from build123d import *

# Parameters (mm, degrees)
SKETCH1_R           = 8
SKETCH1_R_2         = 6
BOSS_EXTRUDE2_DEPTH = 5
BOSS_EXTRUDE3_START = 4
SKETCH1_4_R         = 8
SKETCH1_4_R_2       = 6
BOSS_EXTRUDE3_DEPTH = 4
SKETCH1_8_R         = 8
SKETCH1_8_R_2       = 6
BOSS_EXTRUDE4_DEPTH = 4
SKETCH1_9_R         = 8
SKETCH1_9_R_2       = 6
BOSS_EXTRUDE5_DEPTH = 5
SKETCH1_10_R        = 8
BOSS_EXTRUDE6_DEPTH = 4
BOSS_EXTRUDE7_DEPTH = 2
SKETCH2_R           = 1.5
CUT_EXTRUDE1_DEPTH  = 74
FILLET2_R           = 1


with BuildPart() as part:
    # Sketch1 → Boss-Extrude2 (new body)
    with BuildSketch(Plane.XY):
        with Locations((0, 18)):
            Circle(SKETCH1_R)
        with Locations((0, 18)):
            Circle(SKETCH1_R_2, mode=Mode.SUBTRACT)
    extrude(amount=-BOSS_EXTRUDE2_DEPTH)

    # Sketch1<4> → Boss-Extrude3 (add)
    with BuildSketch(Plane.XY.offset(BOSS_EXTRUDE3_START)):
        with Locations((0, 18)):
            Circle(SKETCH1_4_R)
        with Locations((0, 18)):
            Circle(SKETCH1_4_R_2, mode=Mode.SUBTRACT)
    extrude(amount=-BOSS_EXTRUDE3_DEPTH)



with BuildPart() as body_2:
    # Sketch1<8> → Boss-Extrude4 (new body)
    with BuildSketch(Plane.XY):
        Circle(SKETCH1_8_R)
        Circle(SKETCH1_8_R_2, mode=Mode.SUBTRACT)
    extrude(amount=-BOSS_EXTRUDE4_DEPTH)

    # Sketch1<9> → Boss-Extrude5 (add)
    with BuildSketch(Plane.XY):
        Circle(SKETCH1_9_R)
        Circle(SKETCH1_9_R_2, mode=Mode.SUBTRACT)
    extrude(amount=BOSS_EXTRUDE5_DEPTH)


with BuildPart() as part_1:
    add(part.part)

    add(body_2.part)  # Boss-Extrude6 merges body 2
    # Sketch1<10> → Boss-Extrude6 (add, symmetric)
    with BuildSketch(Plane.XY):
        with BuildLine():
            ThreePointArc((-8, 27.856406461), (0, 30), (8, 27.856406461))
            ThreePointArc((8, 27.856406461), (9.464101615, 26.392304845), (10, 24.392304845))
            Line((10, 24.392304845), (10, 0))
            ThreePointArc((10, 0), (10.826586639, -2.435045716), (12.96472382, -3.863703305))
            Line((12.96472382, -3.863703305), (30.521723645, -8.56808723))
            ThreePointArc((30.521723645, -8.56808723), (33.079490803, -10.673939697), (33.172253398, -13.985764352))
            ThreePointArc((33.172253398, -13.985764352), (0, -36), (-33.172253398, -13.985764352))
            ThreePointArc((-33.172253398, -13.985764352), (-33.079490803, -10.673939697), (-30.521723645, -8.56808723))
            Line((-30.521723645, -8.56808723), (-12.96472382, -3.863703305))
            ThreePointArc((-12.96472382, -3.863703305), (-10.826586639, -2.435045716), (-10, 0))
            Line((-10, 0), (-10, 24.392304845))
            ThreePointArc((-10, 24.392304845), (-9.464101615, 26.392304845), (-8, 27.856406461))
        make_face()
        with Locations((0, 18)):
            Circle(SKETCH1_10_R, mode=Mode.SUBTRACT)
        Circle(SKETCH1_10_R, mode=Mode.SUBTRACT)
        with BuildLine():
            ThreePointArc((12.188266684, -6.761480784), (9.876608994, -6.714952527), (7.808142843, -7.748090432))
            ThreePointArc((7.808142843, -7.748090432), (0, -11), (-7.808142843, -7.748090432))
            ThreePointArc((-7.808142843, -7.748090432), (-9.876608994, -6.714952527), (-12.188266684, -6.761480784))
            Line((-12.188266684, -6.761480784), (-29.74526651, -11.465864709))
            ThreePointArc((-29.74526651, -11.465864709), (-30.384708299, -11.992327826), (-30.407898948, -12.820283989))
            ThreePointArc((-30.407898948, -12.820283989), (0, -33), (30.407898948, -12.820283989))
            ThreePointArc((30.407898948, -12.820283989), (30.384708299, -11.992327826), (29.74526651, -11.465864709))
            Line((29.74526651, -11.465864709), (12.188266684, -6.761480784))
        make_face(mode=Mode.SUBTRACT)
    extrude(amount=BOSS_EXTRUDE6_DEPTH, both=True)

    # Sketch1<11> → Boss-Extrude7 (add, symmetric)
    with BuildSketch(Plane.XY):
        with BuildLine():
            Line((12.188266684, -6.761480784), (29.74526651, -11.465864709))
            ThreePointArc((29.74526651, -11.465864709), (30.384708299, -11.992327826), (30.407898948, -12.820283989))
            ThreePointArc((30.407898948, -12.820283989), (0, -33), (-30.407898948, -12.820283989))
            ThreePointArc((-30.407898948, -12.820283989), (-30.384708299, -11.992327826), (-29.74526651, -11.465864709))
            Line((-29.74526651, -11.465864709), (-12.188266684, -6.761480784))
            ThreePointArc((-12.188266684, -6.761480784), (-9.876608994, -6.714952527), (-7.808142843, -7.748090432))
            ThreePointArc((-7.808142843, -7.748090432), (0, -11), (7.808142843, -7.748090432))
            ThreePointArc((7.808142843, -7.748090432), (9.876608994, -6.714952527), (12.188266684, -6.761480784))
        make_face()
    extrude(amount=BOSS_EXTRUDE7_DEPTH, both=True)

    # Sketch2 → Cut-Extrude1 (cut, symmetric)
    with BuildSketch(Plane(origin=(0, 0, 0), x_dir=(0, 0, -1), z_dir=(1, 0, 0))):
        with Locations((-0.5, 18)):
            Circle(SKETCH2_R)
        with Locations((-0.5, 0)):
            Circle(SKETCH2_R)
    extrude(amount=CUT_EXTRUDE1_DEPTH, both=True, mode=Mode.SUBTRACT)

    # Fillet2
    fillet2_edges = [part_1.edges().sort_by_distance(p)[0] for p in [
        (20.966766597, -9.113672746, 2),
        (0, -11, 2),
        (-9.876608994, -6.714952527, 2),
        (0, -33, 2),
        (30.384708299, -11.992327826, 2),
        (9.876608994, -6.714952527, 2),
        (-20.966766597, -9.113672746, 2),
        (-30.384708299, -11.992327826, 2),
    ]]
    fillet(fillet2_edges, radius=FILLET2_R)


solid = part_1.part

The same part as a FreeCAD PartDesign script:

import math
import FreeCAD as App
import Part
import Sketcher

V = App.Vector
Q = App.Units.Quantity


def edges_at(feature, points):
    """Names of the edges that pass closest to the given points."""
    edges = feature.Shape.Edges
    near = lambda p: min(range(len(edges)), key=lambda i: edges[i].distToShape(Part.Vertex(*p))[0])
    return sorted({f"Edge{near(p) + 1}" for p in points})

doc = App.newDocument("Part")
body = doc.addObject("PartDesign::Body", "Body")

sketch1 = doc.addObject("Sketcher::SketchObject", "Sketch")
body.addObject(sketch1)
sketch1.AttachmentSupport = (doc.XY_Plane, [""])
sketch1.MapMode = "FlatFace"
sketch1.addGeometry([
    Part.Circle(V(0, 18, 0), V(0, 0, 1), 8),
    Part.Circle(V(0, 18, 0), V(0, 0, 1), 6),
], False)
sketch1.addConstraint([
    Sketcher.Constraint("Coincident", 1, 3, 0, 3),
    Sketcher.Constraint("PointOnObject", 0, 3, -2),
    Sketcher.Constraint("Diameter", 0, Q("16 mm")),
    Sketcher.Constraint("Diameter", 1, Q("12 mm")),
    Sketcher.Constraint("DistanceY", -1, 1, 0, 3, Q("18 mm")),
])
pad1 = doc.addObject("PartDesign::Pad", "Pad")
body.addObject(pad1)
pad1.Profile = sketch1
pad1.Length = 5
pad1.Reversed = True

sketch2 = doc.addObject("Sketcher::SketchObject", "Sketch001")
body.addObject(sketch2)
sketch2.AttachmentSupport = (doc.XY_Plane, [""])
sketch2.MapMode = "FlatFace"
sketch2.AttachmentOffset = App.Placement(V(0, 0, 4), App.Rotation())
sketch2.addGeometry([
    Part.Circle(V(0, 18, 0), V(0, 0, 1), 8),
    Part.Circle(V(0, 18, 0), V(0, 0, 1), 6),
], False)
sketch2.addConstraint([
    Sketcher.Constraint("Coincident", 1, 3, 0, 3),
    Sketcher.Constraint("PointOnObject", 0, 3, -2),
    Sketcher.Constraint("Diameter", 0, Q("16 mm")),
    Sketcher.Constraint("Diameter", 1, Q("12 mm")),
    Sketcher.Constraint("DistanceY", -1, 1, 0, 3, Q("18 mm")),
])
pad2 = doc.addObject("PartDesign::Pad", "Pad001")
body.addObject(pad2)
pad2.Profile = sketch2
pad2.Length = 4
pad2.Reversed = True
body2 = doc.addObject("PartDesign::Body", "Body001")

sketch3 = doc.addObject("Sketcher::SketchObject", "Sketch002")
body2.addObject(sketch3)
sketch3.AttachmentSupport = (doc.getObject("XY_Plane001"), [""])
sketch3.MapMode = "FlatFace"
sketch3.addGeometry([
    Part.Circle(V(0, 0, 0), V(0, 0, 1), 8),
    Part.Circle(V(0, 0, 0), V(0, 0, 1), 6),
], False)
sketch3.addConstraint([
    Sketcher.Constraint("Coincident", 0, 3, -1, 1),
    Sketcher.Constraint("Coincident", 1, 3, -1, 1),
    Sketcher.Constraint("Diameter", 0, Q("16 mm")),
    Sketcher.Constraint("Diameter", 1, Q("12 mm")),
])
pad3 = doc.addObject("PartDesign::Pad", "Pad002")
body2.addObject(pad3)
pad3.Profile = sketch3
pad3.Length = 4
pad3.Reversed = True

sketch4 = doc.addObject("Sketcher::SketchObject", "Sketch003")
body2.addObject(sketch4)
sketch4.AttachmentSupport = (doc.getObject("XY_Plane001"), [""])
sketch4.MapMode = "FlatFace"
sketch4.addGeometry([
    Part.Circle(V(0, 0, 0), V(0, 0, 1), 8),
    Part.Circle(V(0, 0, 0), V(0, 0, 1), 6),
], False)
sketch4.addConstraint([
    Sketcher.Constraint("Coincident", 0, 3, -1, 1),
    Sketcher.Constraint("Coincident", 1, 3, -1, 1),
    Sketcher.Constraint("Diameter", 0, Q("16 mm")),
    Sketcher.Constraint("Diameter", 1, Q("12 mm")),
])
pad4 = doc.addObject("PartDesign::Pad", "Pad003")
body2.addObject(pad4)
pad4.Profile = sketch4
pad4.Length = 5
body.AllowCompound = True
doc.recompute()

boolean = doc.addObject("PartDesign::Boolean", "Boolean")
body.addObject(boolean)
boolean.Type = "Fuse"
boolean.addObjects([body2])

sketch5 = doc.addObject("Sketcher::SketchObject", "Sketch004")
body.addObject(sketch5)
sketch5.AttachmentSupport = (doc.XY_Plane, [""])
sketch5.MapMode = "FlatFace"
sketch5.addGeometry([
    Part.ArcOfCircle(Part.Circle(V(0, 14, 0), V(0, 0, 1), 16), math.radians(60), math.radians(120)),
    Part.ArcOfCircle(Part.Circle(V(-6, 24.4, 0), V(0, 0, 1), 4), math.radians(120), math.radians(180)),
    Part.LineSegment(V(-10, 24.4, 0), V(-10, 0, 0)),
    Part.ArcOfCircle(Part.Circle(V(-14, 0, 0), V(0, 0, 1), 4), math.radians(-75), math.radians(0)),
    Part.LineSegment(V(-13, -3.9, 0), V(-30.5, -8.6, 0)),
    Part.ArcOfCircle(Part.Circle(V(-29.5, -12.4, 0), V(0, 0, 1), 4), math.radians(105), math.radians(203)),
    Part.ArcOfCircle(Part.Circle(V(0, 0, 0), V(0, 0, 1), 36), math.radians(-157), math.radians(-23)),
    Part.ArcOfCircle(Part.Circle(V(29.5, -12.4, 0), V(0, 0, 1), 4), math.radians(-23), math.radians(75)),
    Part.LineSegment(V(30.5, -8.6, 0), V(13, -3.9, 0)),
    Part.ArcOfCircle(Part.Circle(V(14, 0, 0), V(0, 0, 1), 4), math.radians(180), math.radians(255)),
    Part.LineSegment(V(10, 0, 0), V(10, 24.4, 0)),
    Part.ArcOfCircle(Part.Circle(V(6, 24.4, 0), V(0, 0, 1), 4), math.radians(0), math.radians(60)),
    Part.LineSegment(V(12.2, -6.8, 0), V(29.7, -11.5, 0)),
    Part.ArcOfCircle(Part.Circle(V(29.5, -12.4, 0), V(0, 0, 1), 1), math.radians(-23), math.radians(75)),
    Part.ArcOfCircle(Part.Circle(V(0, 0, 0), V(0, 0, 1), 33), math.radians(-157), math.radians(-23)),
    Part.ArcOfCircle(Part.Circle(V(-29.5, -12.4, 0), V(0, 0, 1), 1), math.radians(105), math.radians(203)),
    Part.LineSegment(V(-29.7, -11.5, 0), V(-12.2, -6.8, 0)),
    Part.ArcOfCircle(Part.Circle(V(-10.9, -11.4, 0), V(0, 0, 1), 4.8), math.radians(50), math.radians(105)),
    Part.ArcOfCircle(Part.Circle(V(0, 0, 0), V(0, 0, 1), 11), math.radians(-135), math.radians(-45)),
    Part.ArcOfCircle(Part.Circle(V(10.9, -11.4, 0), V(0, 0, 1), 4.8), math.radians(75), math.radians(130)),
    Part.Circle(V(0, 0, 0), V(0, 0, 1), 8),
    Part.Circle(V(0, 18, 0), V(0, 0, 1), 8),
], False)
sketch5.addConstraint([
    Sketcher.Constraint("Tangent", 0, 2, 1, 1),
    Sketcher.Constraint("Tangent", 1, 2, 2, 1),
    Sketcher.Constraint("Tangent", 2, 2, 3, 2),
    Sketcher.Constraint("Tangent", 3, 1, 4, 1),
    Sketcher.Constraint("Tangent", 4, 2, 5, 1),
    Sketcher.Constraint("Tangent", 5, 2, 6, 1),
    Sketcher.Constraint("Tangent", 6, 2, 7, 1),
    Sketcher.Constraint("Tangent", 7, 2, 8, 1),
    Sketcher.Constraint("Tangent", 8, 2, 9, 2),
    Sketcher.Constraint("Tangent", 9, 1, 10, 1),
    Sketcher.Constraint("Tangent", 10, 2, 11, 1),
    Sketcher.Constraint("Tangent", 11, 2, 0, 1),
    Sketcher.Constraint("Tangent", 12, 2, 13, 2),
    Sketcher.Constraint("Tangent", 13, 1, 14, 2),
    Sketcher.Constraint("Tangent", 14, 1, 15, 2),
    Sketcher.Constraint("Tangent", 15, 1, 16, 1),
    Sketcher.Constraint("Tangent", 16, 2, 17, 2),
    Sketcher.Constraint("Coincident", 17, 1, 18, 1),
    Sketcher.Constraint("Coincident", 18, 2, 19, 2),
    Sketcher.Constraint("Tangent", 19, 1, 12, 1),
    Sketcher.Constraint("Vertical", 2),
    Sketcher.Constraint("Vertical", 10),
    Sketcher.Constraint("Coincident", 6, 3, -1, 1),
    Sketcher.Constraint("Coincident", 14, 3, -1, 1),
    Sketcher.Constraint("Coincident", 18, 3, -1, 1),
    Sketcher.Constraint("Coincident", 20, 3, -1, 1),
    Sketcher.Constraint("Coincident", 13, 3, 7, 3),
    Sketcher.Constraint("Coincident", 15, 3, 5, 3),
    Sketcher.Constraint("Equal", 1, 3),
    Sketcher.Constraint("Equal", 3, 5),
    Sketcher.Constraint("Equal", 5, 7),
    Sketcher.Constraint("Equal", 7, 9),
    Sketcher.Constraint("Equal", 9, 11),
    Sketcher.Constraint("Equal", 17, 19),
    Sketcher.Constraint("Equal", 20, 21),
    Sketcher.Constraint("Symmetric", 3, 3, 9, 3, -1, 1),
    Sketcher.Constraint("Symmetric", 17, 3, 19, 3, -2),
    Sketcher.Constraint("Symmetric", 4, 2, 7, 2, -2),
    Sketcher.Constraint("PointOnObject", 0, 3, -2),
    Sketcher.Constraint("PointOnObject", 21, 3, -2),
    Sketcher.Constraint("Parallel", 8, 12),
    Sketcher.Constraint("Equal", 8, 12),
    Sketcher.Constraint("Diameter", 20, Q("16 mm")),
    Sketcher.Constraint("Radius", 0, Q("16 mm")),
    Sketcher.Constraint("Radius", 1, Q("4 mm")),
    Sketcher.Constraint("Radius", 6, Q("36 mm")),
    Sketcher.Constraint("Radius", 13, Q("1 mm")),
    Sketcher.Constraint("Radius", 18, Q("11 mm")),
    Sketcher.Constraint("Angle", 4, Q("-165 deg")),
    Sketcher.Constraint("DistanceY", -1, 1, 0, 3, Q("14 mm")),
    Sketcher.Constraint("DistanceX", 1, 3, -1, 1, Q("6 mm")),
    Sketcher.Constraint("DistanceY", -1, 1, 21, 3, Q("18 mm")),
    Sketcher.Constraint("Radius", 17, Q("4.830439 mm")),
])
pad5 = doc.addObject("PartDesign::Pad", "Pad004")
body.addObject(pad5)
pad5.Profile = sketch5
pad5.Length = 8
pad5.Midplane = True

sketch6 = doc.addObject("Sketcher::SketchObject", "Sketch005")
body.addObject(sketch6)
sketch6.AttachmentSupport = (doc.XY_Plane, [""])
sketch6.MapMode = "FlatFace"
sketch6.addGeometry([
    Part.LineSegment(V(29.7, -11.5, 0), V(12.2, -6.8, 0)),
    Part.ArcOfCircle(Part.Circle(V(10.9, -11.4, 0), V(0, 0, 1), 4.8), math.radians(75), math.radians(130)),
    Part.ArcOfCircle(Part.Circle(V(0, 0, 0), V(0, 0, 1), 11), math.radians(-135), math.radians(-45)),
    Part.ArcOfCircle(Part.Circle(V(-10.9, -11.4, 0), V(0, 0, 1), 4.8), math.radians(50), math.radians(105)),
    Part.LineSegment(V(-12.2, -6.8, 0), V(-29.7, -11.5, 0)),
    Part.ArcOfCircle(Part.Circle(V(-29.5, -12.4, 0), V(0, 0, 1), 1), math.radians(105), math.radians(203)),
    Part.ArcOfCircle(Part.Circle(V(0, 0, 0), V(0, 0, 1), 33), math.radians(-157), math.radians(-23)),
    Part.ArcOfCircle(Part.Circle(V(29.5, -12.4, 0), V(0, 0, 1), 1), math.radians(-23), math.radians(75)),
], False)
sketch6.addConstraint([
    Sketcher.Constraint("Tangent", 0, 2, 1, 1),
    Sketcher.Constraint("Coincident", 1, 2, 2, 2),
    Sketcher.Constraint("Coincident", 2, 1, 3, 1),
    Sketcher.Constraint("Tangent", 3, 2, 4, 1),
    Sketcher.Constraint("Tangent", 4, 2, 5, 1),
    Sketcher.Constraint("Tangent", 5, 2, 6, 1),
    Sketcher.Constraint("Tangent", 6, 2, 7, 1),
    Sketcher.Constraint("Tangent", 7, 2, 0, 1),
    Sketcher.Constraint("Coincident", 2, 3, -1, 1),
    Sketcher.Constraint("Coincident", 6, 3, -1, 1),
    Sketcher.Constraint("Equal", 1, 3),
    Sketcher.Constraint("Equal", 5, 7),
    Sketcher.Constraint("Symmetric", 1, 3, 3, 3, -2),
    Sketcher.Constraint("Horizontal", 5, 3, 7, 3),
    Sketcher.Constraint("Radius", 2, Q("11 mm")),
    Sketcher.Constraint("Radius", 5, Q("1 mm")),
    Sketcher.Constraint("Radius", 6, Q("33 mm")),
    Sketcher.Constraint("Angle", 0, Q("165 deg")),
    Sketcher.Constraint("Radius", 1, Q("4.830439 mm")),
    Sketcher.Constraint("DistanceX", 4, 2, 3, 2, Q("17.557 mm")),
    Sketcher.Constraint("DistanceX", 5, 2, -1, 1, Q("30.407899 mm")),
])
pad6 = doc.addObject("PartDesign::Pad", "Pad005")
body.addObject(pad6)
pad6.Profile = sketch6
pad6.Length = 4
pad6.Midplane = True

sketch7 = doc.addObject("Sketcher::SketchObject", "Sketch006")
body.addObject(sketch7)
sketch7.AttachmentSupport = (doc.YZ_Plane, [""])
sketch7.MapMode = "FlatFace"
sketch7.addGeometry([
    Part.Circle(V(18, 0.5, 0), V(0, 0, 1), 1.5),
    Part.Circle(V(0, 0.5, 0), V(0, 0, 1), 1.5),
], False)
sketch7.addConstraint([
    Sketcher.Constraint("Equal", 0, 1),
    Sketcher.Constraint("PointOnObject", 1, 3, -2),
    Sketcher.Constraint("Horizontal", 0, 3, 1, 3),
    Sketcher.Constraint("Diameter", 0, Q("3 mm")),
    Sketcher.Constraint("DistanceX", -1, 1, 0, 3, Q("18 mm")),
    Sketcher.Constraint("DistanceY", -1, 1, 0, 3, Q("0.5 mm")),
])
pocket1 = doc.addObject("PartDesign::Pocket", "Pocket")
body.addObject(pocket1)
pocket1.Profile = sketch7
pocket1.Length = 148
pocket1.Midplane = True
doc.recompute()

fillet = doc.addObject("PartDesign::Fillet", "Fillet")
body.addObject(fillet)
fillet.Base = (pocket1, edges_at(pocket1, [
    (20.967, -9.114, 2),
    (0, -11, 2),
    (-9.877, -6.715, 2),
    (0, -33, 2),
    (30.385, -11.992, 2),
    (9.877, -6.715, 2),
    (-20.967, -9.114, 2),
    (-30.385, -11.992, 2),
]))
fillet.Radius = 1

doc.recompute()
